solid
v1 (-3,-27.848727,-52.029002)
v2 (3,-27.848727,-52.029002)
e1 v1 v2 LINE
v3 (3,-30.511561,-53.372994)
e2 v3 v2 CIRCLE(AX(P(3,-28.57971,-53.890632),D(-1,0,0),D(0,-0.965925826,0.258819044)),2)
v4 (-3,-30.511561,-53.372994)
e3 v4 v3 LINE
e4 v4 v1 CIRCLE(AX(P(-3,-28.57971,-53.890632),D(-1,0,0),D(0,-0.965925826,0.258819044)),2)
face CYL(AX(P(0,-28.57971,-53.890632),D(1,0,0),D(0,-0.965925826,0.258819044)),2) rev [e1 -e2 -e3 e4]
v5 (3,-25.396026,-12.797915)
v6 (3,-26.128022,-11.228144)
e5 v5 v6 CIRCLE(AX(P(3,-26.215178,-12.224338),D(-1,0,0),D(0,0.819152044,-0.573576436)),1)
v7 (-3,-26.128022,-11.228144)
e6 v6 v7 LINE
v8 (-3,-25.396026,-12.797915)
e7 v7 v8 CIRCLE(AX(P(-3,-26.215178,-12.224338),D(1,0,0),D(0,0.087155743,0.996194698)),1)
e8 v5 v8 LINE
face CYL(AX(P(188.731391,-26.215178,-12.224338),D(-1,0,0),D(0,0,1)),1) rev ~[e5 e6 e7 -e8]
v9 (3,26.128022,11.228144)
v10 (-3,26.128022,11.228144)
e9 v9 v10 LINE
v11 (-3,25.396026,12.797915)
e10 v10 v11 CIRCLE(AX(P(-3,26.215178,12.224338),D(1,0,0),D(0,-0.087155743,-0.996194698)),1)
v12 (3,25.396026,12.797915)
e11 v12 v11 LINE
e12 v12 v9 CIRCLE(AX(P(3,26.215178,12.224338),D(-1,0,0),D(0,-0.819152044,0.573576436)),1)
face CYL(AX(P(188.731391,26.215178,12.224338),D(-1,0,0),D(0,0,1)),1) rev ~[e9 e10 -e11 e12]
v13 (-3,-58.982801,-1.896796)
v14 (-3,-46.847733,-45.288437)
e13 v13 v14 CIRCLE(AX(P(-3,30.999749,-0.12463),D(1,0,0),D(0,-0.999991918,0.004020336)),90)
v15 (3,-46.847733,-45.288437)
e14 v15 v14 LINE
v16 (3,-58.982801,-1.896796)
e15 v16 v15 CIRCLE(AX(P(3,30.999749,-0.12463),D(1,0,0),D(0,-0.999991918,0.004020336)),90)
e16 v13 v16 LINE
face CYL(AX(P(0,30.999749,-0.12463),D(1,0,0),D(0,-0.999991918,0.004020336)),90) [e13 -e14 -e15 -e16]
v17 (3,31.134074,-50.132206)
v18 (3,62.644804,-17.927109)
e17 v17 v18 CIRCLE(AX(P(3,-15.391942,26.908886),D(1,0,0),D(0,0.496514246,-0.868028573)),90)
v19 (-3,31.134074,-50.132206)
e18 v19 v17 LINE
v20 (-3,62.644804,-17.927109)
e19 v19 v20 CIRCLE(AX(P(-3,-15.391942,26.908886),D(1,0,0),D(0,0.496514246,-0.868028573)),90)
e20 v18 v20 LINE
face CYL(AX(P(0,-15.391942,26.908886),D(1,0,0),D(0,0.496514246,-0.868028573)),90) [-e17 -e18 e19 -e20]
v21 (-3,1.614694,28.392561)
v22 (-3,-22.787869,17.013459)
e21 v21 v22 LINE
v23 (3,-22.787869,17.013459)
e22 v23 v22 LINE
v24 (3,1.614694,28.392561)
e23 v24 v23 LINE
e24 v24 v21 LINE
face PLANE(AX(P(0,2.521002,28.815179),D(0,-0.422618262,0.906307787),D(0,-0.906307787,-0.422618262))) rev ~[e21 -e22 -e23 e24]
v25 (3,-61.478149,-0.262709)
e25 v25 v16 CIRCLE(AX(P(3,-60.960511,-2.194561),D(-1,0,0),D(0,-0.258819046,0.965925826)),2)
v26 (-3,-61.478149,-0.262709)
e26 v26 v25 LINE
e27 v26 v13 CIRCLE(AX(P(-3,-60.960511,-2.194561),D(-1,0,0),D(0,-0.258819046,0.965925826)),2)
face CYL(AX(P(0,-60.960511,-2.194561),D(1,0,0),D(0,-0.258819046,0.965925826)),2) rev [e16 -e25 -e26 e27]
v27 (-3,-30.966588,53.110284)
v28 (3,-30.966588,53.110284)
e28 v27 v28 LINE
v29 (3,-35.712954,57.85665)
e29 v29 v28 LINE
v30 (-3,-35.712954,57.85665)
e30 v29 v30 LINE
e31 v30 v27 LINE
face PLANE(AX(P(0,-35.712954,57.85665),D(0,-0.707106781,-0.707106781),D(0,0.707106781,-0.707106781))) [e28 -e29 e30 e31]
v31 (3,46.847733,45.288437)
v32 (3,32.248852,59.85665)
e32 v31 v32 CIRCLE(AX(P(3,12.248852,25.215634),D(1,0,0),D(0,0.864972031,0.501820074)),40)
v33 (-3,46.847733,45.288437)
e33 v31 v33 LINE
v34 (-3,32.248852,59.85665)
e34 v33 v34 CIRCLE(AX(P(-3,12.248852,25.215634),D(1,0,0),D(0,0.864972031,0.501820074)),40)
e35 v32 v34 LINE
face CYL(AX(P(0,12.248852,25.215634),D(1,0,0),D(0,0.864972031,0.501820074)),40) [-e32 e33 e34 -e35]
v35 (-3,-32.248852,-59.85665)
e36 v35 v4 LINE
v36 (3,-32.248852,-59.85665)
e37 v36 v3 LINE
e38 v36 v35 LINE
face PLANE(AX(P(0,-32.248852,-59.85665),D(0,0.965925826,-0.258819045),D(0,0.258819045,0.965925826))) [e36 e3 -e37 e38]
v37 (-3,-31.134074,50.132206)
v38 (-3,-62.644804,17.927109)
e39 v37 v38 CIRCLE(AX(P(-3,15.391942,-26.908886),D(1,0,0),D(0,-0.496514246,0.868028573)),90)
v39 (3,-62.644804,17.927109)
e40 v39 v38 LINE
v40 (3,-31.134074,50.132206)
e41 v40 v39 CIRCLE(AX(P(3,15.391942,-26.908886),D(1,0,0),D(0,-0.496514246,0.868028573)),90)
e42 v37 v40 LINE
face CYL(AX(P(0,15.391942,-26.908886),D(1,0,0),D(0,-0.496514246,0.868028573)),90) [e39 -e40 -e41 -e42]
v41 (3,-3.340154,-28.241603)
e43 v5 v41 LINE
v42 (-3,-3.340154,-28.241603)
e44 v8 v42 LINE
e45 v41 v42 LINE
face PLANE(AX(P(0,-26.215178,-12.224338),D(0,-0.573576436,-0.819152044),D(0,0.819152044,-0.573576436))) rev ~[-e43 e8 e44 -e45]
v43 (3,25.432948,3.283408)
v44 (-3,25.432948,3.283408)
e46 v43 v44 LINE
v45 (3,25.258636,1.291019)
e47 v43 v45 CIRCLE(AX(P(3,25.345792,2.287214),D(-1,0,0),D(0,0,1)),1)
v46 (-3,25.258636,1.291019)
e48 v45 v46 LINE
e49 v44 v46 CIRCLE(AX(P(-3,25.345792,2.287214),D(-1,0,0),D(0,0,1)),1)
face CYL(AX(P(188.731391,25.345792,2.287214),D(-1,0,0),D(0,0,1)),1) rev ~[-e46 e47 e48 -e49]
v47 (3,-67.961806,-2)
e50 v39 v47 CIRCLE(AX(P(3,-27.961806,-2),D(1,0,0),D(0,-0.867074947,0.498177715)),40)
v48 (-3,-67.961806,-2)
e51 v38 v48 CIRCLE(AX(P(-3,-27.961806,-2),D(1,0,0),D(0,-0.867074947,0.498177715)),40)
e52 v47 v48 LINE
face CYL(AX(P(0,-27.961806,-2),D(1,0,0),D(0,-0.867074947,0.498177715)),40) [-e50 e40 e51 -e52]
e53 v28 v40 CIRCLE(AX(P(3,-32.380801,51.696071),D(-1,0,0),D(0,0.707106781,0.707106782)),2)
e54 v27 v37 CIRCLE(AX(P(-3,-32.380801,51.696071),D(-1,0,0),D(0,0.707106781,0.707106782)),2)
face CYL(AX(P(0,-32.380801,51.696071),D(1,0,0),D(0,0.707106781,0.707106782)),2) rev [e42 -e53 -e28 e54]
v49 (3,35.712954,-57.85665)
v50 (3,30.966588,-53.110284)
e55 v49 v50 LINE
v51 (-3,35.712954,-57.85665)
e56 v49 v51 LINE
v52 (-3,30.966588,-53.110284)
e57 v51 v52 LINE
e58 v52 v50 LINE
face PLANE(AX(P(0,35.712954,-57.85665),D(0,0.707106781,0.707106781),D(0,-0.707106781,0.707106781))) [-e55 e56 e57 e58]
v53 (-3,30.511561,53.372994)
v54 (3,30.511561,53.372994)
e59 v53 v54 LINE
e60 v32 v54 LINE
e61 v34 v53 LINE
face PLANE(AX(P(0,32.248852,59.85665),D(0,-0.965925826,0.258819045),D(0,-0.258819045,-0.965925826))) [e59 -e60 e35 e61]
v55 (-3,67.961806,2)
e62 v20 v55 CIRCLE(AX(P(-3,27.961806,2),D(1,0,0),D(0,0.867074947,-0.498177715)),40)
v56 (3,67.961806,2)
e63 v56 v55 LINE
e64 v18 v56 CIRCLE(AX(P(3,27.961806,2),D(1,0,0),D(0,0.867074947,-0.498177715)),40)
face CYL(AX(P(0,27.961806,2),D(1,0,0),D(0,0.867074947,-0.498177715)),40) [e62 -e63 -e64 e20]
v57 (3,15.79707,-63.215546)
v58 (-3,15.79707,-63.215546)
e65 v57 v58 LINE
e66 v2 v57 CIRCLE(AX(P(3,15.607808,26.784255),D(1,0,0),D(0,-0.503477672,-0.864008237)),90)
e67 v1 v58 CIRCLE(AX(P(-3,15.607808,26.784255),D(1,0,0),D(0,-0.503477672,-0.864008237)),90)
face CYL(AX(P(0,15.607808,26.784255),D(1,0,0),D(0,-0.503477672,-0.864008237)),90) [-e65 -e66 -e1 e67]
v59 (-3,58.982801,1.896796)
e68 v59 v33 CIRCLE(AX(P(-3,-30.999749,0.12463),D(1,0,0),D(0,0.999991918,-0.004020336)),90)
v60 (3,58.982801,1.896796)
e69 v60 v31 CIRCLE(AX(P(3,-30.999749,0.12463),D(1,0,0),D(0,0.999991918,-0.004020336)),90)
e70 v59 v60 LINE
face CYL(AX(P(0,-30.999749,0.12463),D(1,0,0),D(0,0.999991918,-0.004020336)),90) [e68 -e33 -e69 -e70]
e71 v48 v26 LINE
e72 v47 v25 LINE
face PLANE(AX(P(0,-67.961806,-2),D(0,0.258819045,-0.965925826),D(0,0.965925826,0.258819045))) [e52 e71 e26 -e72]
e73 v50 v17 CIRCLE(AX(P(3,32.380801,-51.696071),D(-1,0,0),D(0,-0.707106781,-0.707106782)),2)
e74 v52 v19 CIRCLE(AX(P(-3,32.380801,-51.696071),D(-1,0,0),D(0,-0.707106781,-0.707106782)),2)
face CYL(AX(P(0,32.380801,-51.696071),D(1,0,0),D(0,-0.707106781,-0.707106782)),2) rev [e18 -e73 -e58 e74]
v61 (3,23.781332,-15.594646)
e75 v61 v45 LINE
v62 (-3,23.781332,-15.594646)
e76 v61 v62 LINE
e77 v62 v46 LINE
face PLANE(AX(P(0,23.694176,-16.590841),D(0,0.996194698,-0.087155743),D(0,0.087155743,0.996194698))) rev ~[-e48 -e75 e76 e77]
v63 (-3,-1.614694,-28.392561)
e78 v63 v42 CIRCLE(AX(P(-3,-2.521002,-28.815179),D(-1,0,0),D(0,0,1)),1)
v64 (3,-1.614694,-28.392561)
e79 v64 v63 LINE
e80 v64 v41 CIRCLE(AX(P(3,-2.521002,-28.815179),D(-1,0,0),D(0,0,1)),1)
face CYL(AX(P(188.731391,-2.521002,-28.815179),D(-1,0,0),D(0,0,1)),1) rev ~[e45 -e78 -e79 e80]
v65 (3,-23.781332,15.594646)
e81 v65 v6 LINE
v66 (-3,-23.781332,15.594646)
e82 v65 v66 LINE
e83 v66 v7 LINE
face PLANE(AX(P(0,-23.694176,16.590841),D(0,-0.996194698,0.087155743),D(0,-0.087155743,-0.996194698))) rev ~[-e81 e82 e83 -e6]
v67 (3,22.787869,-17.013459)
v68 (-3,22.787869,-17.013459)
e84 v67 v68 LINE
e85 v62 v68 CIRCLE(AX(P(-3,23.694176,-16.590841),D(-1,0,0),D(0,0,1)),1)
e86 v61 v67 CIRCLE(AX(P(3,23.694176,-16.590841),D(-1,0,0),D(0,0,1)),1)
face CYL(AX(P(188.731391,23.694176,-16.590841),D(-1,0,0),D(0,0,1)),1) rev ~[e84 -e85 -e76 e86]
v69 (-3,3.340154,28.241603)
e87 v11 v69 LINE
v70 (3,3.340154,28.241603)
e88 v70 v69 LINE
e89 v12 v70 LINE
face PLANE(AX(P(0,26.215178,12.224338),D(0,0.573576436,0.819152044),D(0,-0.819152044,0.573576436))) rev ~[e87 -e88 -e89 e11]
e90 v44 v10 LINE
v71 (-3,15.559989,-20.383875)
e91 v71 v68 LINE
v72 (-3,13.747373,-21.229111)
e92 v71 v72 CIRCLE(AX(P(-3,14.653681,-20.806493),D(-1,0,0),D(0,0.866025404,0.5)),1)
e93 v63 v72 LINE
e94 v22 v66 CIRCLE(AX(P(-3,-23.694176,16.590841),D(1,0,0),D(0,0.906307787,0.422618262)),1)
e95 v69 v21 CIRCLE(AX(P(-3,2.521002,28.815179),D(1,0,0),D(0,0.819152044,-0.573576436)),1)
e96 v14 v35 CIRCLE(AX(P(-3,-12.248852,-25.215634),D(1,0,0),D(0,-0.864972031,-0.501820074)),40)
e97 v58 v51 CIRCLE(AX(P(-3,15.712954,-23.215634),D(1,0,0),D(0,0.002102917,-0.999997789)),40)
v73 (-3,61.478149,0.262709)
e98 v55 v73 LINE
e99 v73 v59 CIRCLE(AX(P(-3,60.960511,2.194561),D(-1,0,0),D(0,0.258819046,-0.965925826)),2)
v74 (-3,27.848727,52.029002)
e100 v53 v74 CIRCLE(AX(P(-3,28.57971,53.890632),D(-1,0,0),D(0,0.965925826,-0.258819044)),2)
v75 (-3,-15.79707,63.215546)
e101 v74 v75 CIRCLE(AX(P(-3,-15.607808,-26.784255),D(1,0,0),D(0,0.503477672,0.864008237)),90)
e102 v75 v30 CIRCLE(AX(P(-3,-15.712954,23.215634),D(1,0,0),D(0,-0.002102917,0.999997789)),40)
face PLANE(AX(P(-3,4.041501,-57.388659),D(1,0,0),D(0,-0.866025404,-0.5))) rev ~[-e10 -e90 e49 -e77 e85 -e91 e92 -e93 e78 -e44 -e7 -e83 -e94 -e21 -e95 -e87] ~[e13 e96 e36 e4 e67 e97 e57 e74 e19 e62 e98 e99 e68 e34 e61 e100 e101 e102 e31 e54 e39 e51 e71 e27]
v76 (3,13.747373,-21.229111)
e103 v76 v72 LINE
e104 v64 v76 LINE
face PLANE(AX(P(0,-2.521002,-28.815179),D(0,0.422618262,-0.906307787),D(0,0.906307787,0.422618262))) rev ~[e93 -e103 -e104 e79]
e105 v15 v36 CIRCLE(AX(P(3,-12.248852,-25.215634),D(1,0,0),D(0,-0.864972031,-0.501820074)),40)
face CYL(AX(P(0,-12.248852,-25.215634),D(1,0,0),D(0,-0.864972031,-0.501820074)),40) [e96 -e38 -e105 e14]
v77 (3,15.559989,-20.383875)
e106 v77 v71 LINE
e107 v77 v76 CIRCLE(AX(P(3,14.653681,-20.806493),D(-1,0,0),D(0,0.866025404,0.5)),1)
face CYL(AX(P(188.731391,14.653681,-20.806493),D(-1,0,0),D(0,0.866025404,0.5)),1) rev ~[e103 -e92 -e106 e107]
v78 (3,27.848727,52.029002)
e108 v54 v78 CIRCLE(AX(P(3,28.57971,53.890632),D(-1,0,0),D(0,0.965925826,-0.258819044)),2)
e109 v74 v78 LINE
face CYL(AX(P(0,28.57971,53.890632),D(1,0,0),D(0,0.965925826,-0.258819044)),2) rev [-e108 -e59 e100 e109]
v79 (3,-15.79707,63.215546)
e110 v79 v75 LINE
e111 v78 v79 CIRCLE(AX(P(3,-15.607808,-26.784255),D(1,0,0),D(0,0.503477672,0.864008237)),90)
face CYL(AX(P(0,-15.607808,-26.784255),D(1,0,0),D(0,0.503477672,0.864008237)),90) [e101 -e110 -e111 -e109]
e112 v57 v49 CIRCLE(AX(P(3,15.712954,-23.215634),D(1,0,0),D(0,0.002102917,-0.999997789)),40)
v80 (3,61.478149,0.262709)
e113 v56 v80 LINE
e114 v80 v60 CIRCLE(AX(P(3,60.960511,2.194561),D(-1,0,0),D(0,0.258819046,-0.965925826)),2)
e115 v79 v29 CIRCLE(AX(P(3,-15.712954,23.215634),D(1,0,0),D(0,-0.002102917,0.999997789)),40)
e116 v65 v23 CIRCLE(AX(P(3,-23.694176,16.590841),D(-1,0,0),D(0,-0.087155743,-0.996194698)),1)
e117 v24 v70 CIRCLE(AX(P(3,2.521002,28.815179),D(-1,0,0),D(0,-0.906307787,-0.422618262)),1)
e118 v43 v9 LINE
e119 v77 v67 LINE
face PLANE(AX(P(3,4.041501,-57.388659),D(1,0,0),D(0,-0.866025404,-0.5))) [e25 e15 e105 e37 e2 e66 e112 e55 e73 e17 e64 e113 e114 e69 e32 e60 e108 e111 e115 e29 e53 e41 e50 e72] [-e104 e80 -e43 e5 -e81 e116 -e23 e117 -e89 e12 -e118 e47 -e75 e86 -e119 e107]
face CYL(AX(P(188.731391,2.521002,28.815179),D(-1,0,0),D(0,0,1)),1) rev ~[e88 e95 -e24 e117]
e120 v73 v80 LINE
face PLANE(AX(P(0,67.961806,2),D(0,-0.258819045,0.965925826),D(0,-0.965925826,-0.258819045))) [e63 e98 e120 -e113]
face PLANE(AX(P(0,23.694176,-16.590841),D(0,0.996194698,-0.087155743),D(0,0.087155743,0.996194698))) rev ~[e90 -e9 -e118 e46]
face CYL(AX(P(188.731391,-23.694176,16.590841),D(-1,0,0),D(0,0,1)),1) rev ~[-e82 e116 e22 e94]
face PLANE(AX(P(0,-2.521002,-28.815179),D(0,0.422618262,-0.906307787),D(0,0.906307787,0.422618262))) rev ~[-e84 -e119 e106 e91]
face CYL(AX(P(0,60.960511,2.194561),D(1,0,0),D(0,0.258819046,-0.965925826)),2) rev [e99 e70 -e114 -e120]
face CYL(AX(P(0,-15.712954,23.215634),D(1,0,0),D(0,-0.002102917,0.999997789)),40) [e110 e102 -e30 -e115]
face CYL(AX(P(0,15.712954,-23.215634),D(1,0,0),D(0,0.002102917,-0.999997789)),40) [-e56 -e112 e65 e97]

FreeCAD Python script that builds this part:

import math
import FreeCAD as App
import Part
import Sketcher
Q = App.Units.Quantity


def add_polygon(sketch, points):
    """Adds a closed chain of lines whose ends are joined by coincident constraints."""
    first, n = sketch.GeometryCount, len(points)
    for a, b in zip(points, points[1:] + points[:1]):
        sketch.addGeometry(Part.LineSegment(App.Vector(*a, 0), App.Vector(*b, 0)), False)
    for i in range(n):
        sketch.addConstraint(Sketcher.Constraint("Coincident", first + i, 2, first + (i + 1) % n, 1))

doc = App.newDocument("Part")
params = doc.addObject("Spreadsheet::Sheet", "Params")
for row, (alias, value) in enumerate([
    ("sketch1_diameter", "118 mm"),
    ("pad1_length", "6 mm"),
    ("sketch2_radius", "2 mm"),
    ("sketch2_radius2", "59 mm"),
    ("sketch2_radius3", "90 mm"),
    ("sketch2_radius4", "40 mm"),
    ("pad2_length", "6 mm"),
    ("sketch3_diameter", "2 mm"),
    ("hole_diameter", "2 mm"),
    ("sketch4_diameter", "2 mm"),
    ("hole2_diameter", "2 mm"),
], start=1):
    params.set(f"A{row}", alias)
    params.set(f"B{row}", "=" + value)
    params.setAlias(f"B{row}", alias)

body = doc.addObject("PartDesign::Body", "Body")

sketch1 = doc.addObject("Sketcher::SketchObject", "Sketch")
body.addObject(sketch1)
sketch1.AttachmentSupport = (doc.YZ_Plane, [""])
sketch1.MapMode = "FlatFace"
sketch1.addGeometry(Part.Circle(App.Vector(0, 0, 0), App.Vector(0, 0, 1), 59), False)
add_polygon(sketch1, [(26, 12), (24, -17), (-3, -29), (-26, -12), (-24, 17), (3, 29)])
sketch1.addConstraint([
    Sketcher.Constraint("Coincident", 0, 3, -1, 1),
    Sketcher.Constraint("Symmetric", 1, 2, 4, 2, -1, 1),
    Sketcher.Constraint("Symmetric", 2, 2, 5, 2, -1, 1),
    Sketcher.Constraint("Symmetric", 3, 2, 6, 2, -1, 1),
    Sketcher.Constraint("Equal", 1, 2),
    Sketcher.Constraint("Equal", 2, 3),
    Sketcher.Constraint("Diameter", 0, 118.0),
    Sketcher.Constraint("Angle", 1, Q("-95 deg")),
    Sketcher.Constraint("Angle", 2, Q("-155 deg")),
    Sketcher.Constraint("Angle", 3, Q("145 deg")),
    Sketcher.Constraint("DistanceX", 2, 2, -1, 1, 2.521002),
])
sketch1.setExpression("Constraints[12]", "Params.sketch1_diameter")
pad1 = doc.addObject("PartDesign::Pad", "Pad")
body.addObject(pad1)
pad1.Profile = sketch1
pad1.setExpression("Length", "Params.pad1_length")
pad1.Midplane = True

sketch2 = doc.addObject("Sketcher::SketchObject", "Sketch001")
body.addObject(sketch2)
sketch2.AttachmentSupport = (doc.YZ_Plane, [""])
sketch2.MapMode = "FlatFace"
sketch2.addGeometry([
    Part.LineSegment(App.Vector(68, 2, 0), App.Vector(61.5, 0.3, 0)),
    Part.ArcOfCircle(Part.Circle(App.Vector(61, 2.2, 0), App.Vector(0, 0, 1), 2), math.radians(-178), math.radians(-75)),
    Part.ArcOfCircle(Part.Circle(App.Vector(0, 0, 0), App.Vector(0, 0, 1), 59), math.radians(-60), math.radians(2)),
    Part.ArcOfCircle(Part.Circle(App.Vector(-15.4, 26.9, 0), App.Vector(0, 0, 1), 90), math.radians(-60), math.radians(-30)),
    Part.ArcOfCircle(Part.Circle(App.Vector(28, 2, 0), App.Vector(0, 0, 1), 40), math.radians(-30), math.radians(0)),
], False)
sketch2.addConstraint([
    Sketcher.Constraint("Tangent", 0, 2, 1, 2),
    Sketcher.Constraint("Tangent", 1, 1, 2, 2),
    Sketcher.Constraint("Tangent", 2, 1, 3, 1),
    Sketcher.Constraint("Tangent", 3, 2, 4, 1),
    Sketcher.Constraint("Coincident", 4, 2, 0, 1),
    Sketcher.Constraint("Coincident", 2, 3, -1, 1),
    Sketcher.Constraint("Radius", 1, 2.0),
    Sketcher.Constraint("Radius", 2, 59.0),
    Sketcher.Constraint("Radius", 3, 90.0),
    Sketcher.Constraint("Radius", 4, 40.0),
    Sketcher.Constraint("Angle", 0, Q("-165 deg")),
    Sketcher.Constraint("DistanceY", -1, 1, 4, 3, 2.0),
    Sketcher.Constraint("DistanceY", -1, 1, 4, 2, 2.0),
    Sketcher.Constraint("DistanceX", 4, 3, 1, 1, 31.0),
])
sketch2.setExpression("Constraints[6]", "Params.sketch2_radius")
sketch2.setExpression("Constraints[7]", "Params.sketch2_radius2")
sketch2.setExpression("Constraints[8]", "Params.sketch2_radius3")
sketch2.setExpression("Constraints[9]", "Params.sketch2_radius4")
pad2 = doc.addObject("PartDesign::Pad", "Pad001")
body.addObject(pad2)
pad2.Profile = sketch2
pad2.setExpression("Length", "Params.pad2_length")
pad2.Midplane = True
doc.recompute()

polarpattern = doc.addObject("PartDesign::PolarPattern", "PolarPattern")
body.addObject(polarpattern)
polarpattern.Originals = [pad2]
polarpattern.Axis = (doc.X_Axis, [""])
polarpattern.Angle = 360
polarpattern.Occurrences = 6
body.Tip = polarpattern

sketch3 = doc.addObject("Sketcher::SketchObject", "Sketch002")
body.addObject(sketch3)
sketch3.AttachmentSupport = (doc.YZ_Plane, [""])
sketch3.MapMode = "FlatFace"
sketch3.AttachmentOffset = App.Placement(App.Vector(0, 0, 3), App.Rotation())
sketch3.addGeometry([
    Part.Circle(App.Vector(26.2, 12.2, 0), App.Vector(0, 0, 1), 1),
    Part.Circle(App.Vector(23.7, -16.6, 0), App.Vector(0, 0, 1), 1),
    Part.Circle(App.Vector(-2.5, -28.8, 0), App.Vector(0, 0, 1), 1),
    Part.Circle(App.Vector(-26.2, -12.2, 0), App.Vector(0, 0, 1), 1),
    Part.Circle(App.Vector(-23.7, 16.6, 0), App.Vector(0, 0, 1), 1),
    Part.Circle(App.Vector(2.5, 28.8, 0), App.Vector(0, 0, 1), 1),
], False)
sketch3.addConstraint([
    Sketcher.Constraint("Equal", 0, 1),
    Sketcher.Constraint("Equal", 1, 2),
    Sketcher.Constraint("Equal", 2, 3),
    Sketcher.Constraint("Equal", 3, 4),
    Sketcher.Constraint("Equal", 4, 5),
    Sketcher.Constraint("Symmetric", 0, 3, 3, 3, -1, 1),
    Sketcher.Constraint("Symmetric", 1, 3, 4, 3, -1, 1),
    Sketcher.Constraint("Symmetric", 2, 3, 5, 3, -1, 1),
    Sketcher.Constraint("Diameter", 0, 2.0),
    Sketcher.Constraint("DistanceX", 2, 3, -1, 1, 2.521002),
    Sketcher.Constraint("DistanceX", 1, 3, 0, 3, 2.521002),
    Sketcher.Constraint("DistanceY", -1, 1, 0, 3, 12.224338),
    Sketcher.Constraint("DistanceY", 1, 3, -1, 1, 16.590841),
    Sketcher.Constraint("DistanceY", 2, 3, -1, 1, 28.815179),
    Sketcher.Constraint("DistanceX", 2, 3, 0, 3, 28.736179),
])
sketch3.setExpression("Constraints[8]", "Params.sketch3_diameter")
doc.recompute()
hole = doc.addObject("PartDesign::Hole", "Hole")
body.addObject(hole)
hole.Profile = sketch3
hole.ThreadType = "None"
hole.setExpression("Diameter", "Params.hole_diameter")
hole.DepthType = "ThroughAll"

sketch4 = doc.addObject("Sketcher::SketchObject", "Sketch003")
body.addObject(sketch4)
sketch4.AttachmentSupport = (doc.YZ_Plane, [""])
sketch4.MapMode = "FlatFace"
sketch4.AttachmentOffset = App.Placement(App.Vector(0, 0, 3), App.Rotation())
sketch4.addGeometry(Part.Circle(App.Vector(25.3, 2.3, 0), App.Vector(0, 0, 1), 1), False)
sketch4.addConstraint([
    Sketcher.Constraint("Diameter", 0, 2.0),
    Sketcher.Constraint("DistanceX", -1, 1, 0, 3, 25.345792),
    Sketcher.Constraint("DistanceY", -1, 1, 0, 3, 2.287214),
])
sketch4.setExpression("Constraints[0]", "Params.sketch4_diameter")
doc.recompute()
hole2 = doc.addObject("PartDesign::Hole", "Hole001")
body.addObject(hole2)
hole2.Profile = sketch4
hole2.ThreadType = "None"
hole2.setExpression("Diameter", "Params.hole2_diameter")
hole2.DepthType = "ThroughAll"
doc.recompute()

polarpattern2 = doc.addObject("PartDesign::PolarPattern", "PolarPattern001")
body.addObject(polarpattern2)
polarpattern2.Originals = [hole2]
polarpattern2.Axis = (doc.X_Axis, [""])
polarpattern2.Angle = 60
polarpattern2.Occurrences = 2
polarpattern2.Reversed = True
body.Tip = polarpattern2

doc.recompute()
